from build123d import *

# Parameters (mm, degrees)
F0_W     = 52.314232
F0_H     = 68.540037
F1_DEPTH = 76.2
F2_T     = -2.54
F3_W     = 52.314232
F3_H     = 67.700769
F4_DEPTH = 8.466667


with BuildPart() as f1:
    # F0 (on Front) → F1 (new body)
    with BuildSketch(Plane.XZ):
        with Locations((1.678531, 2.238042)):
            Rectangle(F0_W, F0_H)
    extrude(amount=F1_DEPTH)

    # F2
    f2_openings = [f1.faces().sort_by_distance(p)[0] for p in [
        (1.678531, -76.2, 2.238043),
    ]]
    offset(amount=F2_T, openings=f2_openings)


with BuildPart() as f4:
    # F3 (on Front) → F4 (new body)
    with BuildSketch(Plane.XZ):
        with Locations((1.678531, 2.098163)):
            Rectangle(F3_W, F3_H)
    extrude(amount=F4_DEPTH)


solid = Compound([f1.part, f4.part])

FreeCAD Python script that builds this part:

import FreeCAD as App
import Part
import Sketcher

V = App.Vector
Q = App.Units.Quantity


def faces_at(feature, points):
    """Names of the faces that lie closest to the given points."""
    faces = feature.Shape.Faces
    near = lambda p: min(range(len(faces)), key=lambda i: faces[i].distToShape(Part.Vertex(*p))[0])
    return sorted({f"Face{near(p) + 1}" for p in points})

doc = App.newDocument("Part")
body = doc.addObject("PartDesign::Body", "Body")

# Sketch on XZ plane
sketch1 = body.newObject("Sketcher::SketchObject", "Sketch")
sketch1.AttachmentSupport = (doc.getObject("XZ_Plane"), [""])
sketch1.MapMode = "FlatFace"
sketch1.addGeometry([
    Part.LineSegment(V(-24, 37, 0), V(-24, -32, 0)),
    Part.LineSegment(V(-24, -32, 0), V(28, -32, 0)),
    Part.LineSegment(V(28, -32, 0), V(28, 37, 0)),
    Part.LineSegment(V(28, 37, 0), V(-24, 37, 0)),
], False)
sketch1.addConstraint([
    Sketcher.Constraint("Coincident", 0, 2, 1, 1),
    Sketcher.Constraint("Coincident", 1, 2, 2, 1),
    Sketcher.Constraint("Coincident", 2, 2, 3, 1),
    Sketcher.Constraint("Coincident", 3, 2, 0, 1),
    Sketcher.Constraint("Vertical", 0),
    Sketcher.Constraint("Horizontal", 1),
    Sketcher.Constraint("Vertical", 2),
    Sketcher.Constraint("Horizontal", 3),
    Sketcher.Constraint("DistanceX", 1, 1, 1, 2, 52.314232),
    Sketcher.Constraint("DistanceY", 0, 2, 0, 1, 68.540037),
    Sketcher.Constraint("DistanceY", -1, 1, 2, 2, 36.50806),
    Sketcher.Constraint("DistanceX", 0, 2, -1, 1, 24.478585),
])
pad1 = body.newObject("PartDesign::Pad", "Pad")
pad1.Profile = sketch1
pad1.Length = Q("3 in")
doc.recompute()

thickness = body.newObject("PartDesign::Thickness", "Thickness")
thickness.Base = (pad1, faces_at(pad1, [(1.679, -76.2, 2.238)]))
thickness.Value = Q("0.1 in")
thickness.Reversed = True
thickness.Join = "Arc"
body2 = doc.addObject("PartDesign::Body", "Body001")

# Sketch on XZ plane
sketch2 = body2.newObject("Sketcher::SketchObject", "Sketch001")
sketch2.AttachmentSupport = (doc.getObject("XZ_Plane001"), [""])
sketch2.MapMode = "FlatFace"
sketch2.addGeometry([
    Part.LineSegment(V(-24, 36, 0), V(-24, -32, 0)),
    Part.LineSegment(V(-24, -32, 0), V(28, -32, 0)),
    Part.LineSegment(V(28, -32, 0), V(28, 36, 0)),
    Part.LineSegment(V(28, 36, 0), V(-24, 36, 0)),
], False)
sketch2.addConstraint([
    Sketcher.Constraint("Coincident", 0, 2, 1, 1),
    Sketcher.Constraint("Coincident", 1, 2, 2, 1),
    Sketcher.Constraint("Coincident", 2, 2, 3, 1),
    Sketcher.Constraint("Coincident", 3, 2, 0, 1),
    Sketcher.Constraint("Vertical", 0),
    Sketcher.Constraint("Horizontal", 1),
    Sketcher.Constraint("Vertical", 2),
    Sketcher.Constraint("Horizontal", 3),
    Sketcher.Constraint("DistanceY", 0, 2, 0, 1, 67.700769),
    Sketcher.Constraint("DistanceX", 1, 1, 1, 2, 52.314232),
    Sketcher.Constraint("DistanceY", 0, 2, -1, 1, 31.752222),
    Sketcher.Constraint("DistanceX", 0, 2, -1, 1, 24.478585),
])
pad2 = body2.newObject("PartDesign::Pad", "Pad001")
pad2.Profile = sketch2
pad2.Length = 8.466667

doc.recompute()
